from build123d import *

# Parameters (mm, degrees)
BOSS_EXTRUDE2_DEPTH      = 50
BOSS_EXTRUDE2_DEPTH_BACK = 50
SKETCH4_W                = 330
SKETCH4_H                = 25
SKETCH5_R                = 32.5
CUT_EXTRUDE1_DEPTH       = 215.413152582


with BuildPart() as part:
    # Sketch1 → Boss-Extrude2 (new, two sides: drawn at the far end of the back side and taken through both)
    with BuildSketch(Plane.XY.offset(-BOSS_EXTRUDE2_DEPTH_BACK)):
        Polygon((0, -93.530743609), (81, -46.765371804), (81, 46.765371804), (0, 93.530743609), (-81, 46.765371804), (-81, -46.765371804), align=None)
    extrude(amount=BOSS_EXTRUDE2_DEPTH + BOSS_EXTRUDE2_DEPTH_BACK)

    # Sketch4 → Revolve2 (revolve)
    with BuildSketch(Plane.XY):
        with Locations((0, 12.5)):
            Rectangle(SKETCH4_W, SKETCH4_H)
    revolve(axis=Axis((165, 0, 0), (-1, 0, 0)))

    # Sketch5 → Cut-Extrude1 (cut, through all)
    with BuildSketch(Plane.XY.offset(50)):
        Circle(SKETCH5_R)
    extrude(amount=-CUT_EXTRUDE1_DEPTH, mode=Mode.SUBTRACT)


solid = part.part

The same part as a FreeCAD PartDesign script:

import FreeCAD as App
import Part
import Sketcher
Q = App.Units.Quantity

doc = App.newDocument("Part")
body = doc.addObject("PartDesign::Body", "Body")

# Sketch on XY plane
sketch1 = body.newObject("Sketcher::SketchObject", "Sketch")
sketch1.AttachmentSupport = (doc.getObject("XY_Plane"), [""])
sketch1.MapMode = "FlatFace"
sketch1.addGeometry(Part.LineSegment(App.Vector(0, -94, 0), App.Vector(81, -47, 0)), False)
sketch1.addGeometry(Part.LineSegment(App.Vector(81, -47, 0), App.Vector(81, 47, 0)), False)
sketch1.addGeometry(Part.LineSegment(App.Vector(81, 47, 0), App.Vector(0, 94, 0)), False)
sketch1.addGeometry(Part.LineSegment(App.Vector(0, 94, 0), App.Vector(-81, 47, 0)), False)
sketch1.addGeometry(Part.LineSegment(App.Vector(-81, 47, 0), App.Vector(-81, -47, 0)), False)
sketch1.addGeometry(Part.LineSegment(App.Vector(-81, -47, 0), App.Vector(0, -94, 0)), False)
sketch1.addConstraint(Sketcher.Constraint("Coincident", 0, 2, 1, 1))
sketch1.addConstraint(Sketcher.Constraint("Coincident", 1, 2, 2, 1))
sketch1.addConstraint(Sketcher.Constraint("Coincident", 2, 2, 3, 1))
sketch1.addConstraint(Sketcher.Constraint("Coincident", 3, 2, 4, 1))
sketch1.addConstraint(Sketcher.Constraint("Coincident", 4, 2, 5, 1))
sketch1.addConstraint(Sketcher.Constraint("Coincident", 5, 2, 0, 1))
sketch1.addConstraint(Sketcher.Constraint("Vertical", 1))
sketch1.addConstraint(Sketcher.Constraint("Vertical", 4))
sketch1.addConstraint(Sketcher.Constraint("Symmetric", 0, 2, 3, 2, -1, 1))
sketch1.addConstraint(Sketcher.Constraint("Symmetric", 2, 2, 5, 2, -1, 1))
sketch1.addConstraint(Sketcher.Constraint("PointOnObject", 2, 2, -2))
sketch1.addConstraint(Sketcher.Constraint("Parallel", 2, 5))
sketch1.addConstraint(Sketcher.Constraint("Horizontal", 1, 2, 3, 2))
sketch1.addConstraint(Sketcher.Constraint("Angle", 0, Q("30 deg")))
sketch1.addConstraint(Sketcher.Constraint("DistanceX", -1, 1, 0, 2, 81.0))
sketch1.addConstraint(Sketcher.Constraint("DistanceY", 1, 1, 1, 2, 93.530744))
pad1 = body.newObject("PartDesign::Pad", "Pad")
pad1.Profile = sketch1
pad1.Type = "TwoLengths"
pad1.Length = 50
pad1.Length2 = 50

# Sketch on XY plane
sketch2 = body.newObject("Sketcher::SketchObject", "Sketch001")
sketch2.AttachmentSupport = (doc.getObject("XY_Plane"), [""])
sketch2.MapMode = "FlatFace"
sketch2.addGeometry(Part.LineSegment(App.Vector(-165, 25, 0), App.Vector(-165, 0, 0)), False)
sketch2.addGeometry(Part.LineSegment(App.Vector(-165, 0, 0), App.Vector(165, 0, 0)), False)
sketch2.addGeometry(Part.LineSegment(App.Vector(165, 0, 0), App.Vector(165, 25, 0)), False)
sketch2.addGeometry(Part.LineSegment(App.Vector(165, 25, 0), App.Vector(-165, 25, 0)), False)
sketch2.addConstraint(Sketcher.Constraint("Coincident", 0, 2, 1, 1))
sketch2.addConstraint(Sketcher.Constraint("Coincident", 1, 2, 2, 1))
sketch2.addConstraint(Sketcher.Constraint("Coincident", 2, 2, 3, 1))
sketch2.addConstraint(Sketcher.Constraint("Coincident", 3, 2, 0, 1))
sketch2.addConstraint(Sketcher.Constraint("Vertical", 0))
sketch2.addConstraint(Sketcher.Constraint("Horizontal", 1))
sketch2.addConstraint(Sketcher.Constraint("Vertical", 2))
sketch2.addConstraint(Sketcher.Constraint("Horizontal", 3))
sketch2.addConstraint(Sketcher.Constraint("Symmetric", 0, 2, 1, 2, -1, 1))
sketch2.addConstraint(Sketcher.Constraint("DistanceX", 1, 1, 1, 2, 330.0))
sketch2.addConstraint(Sketcher.Constraint("DistanceY", 0, 2, 0, 1, 25.0))
revolution = body.newObject("PartDesign::Revolution", "Revolution")
revolution.Profile = sketch2
revolution.ReferenceAxis = (sketch2, ["H_Axis"])
revolution.Angle = 360

# Sketch on XY plane
sketch3 = body.newObject("Sketcher::SketchObject", "Sketch002")
sketch3.AttachmentSupport = (doc.getObject("XY_Plane"), [""])
sketch3.MapMode = "FlatFace"
sketch3.AttachmentOffset = App.Placement(App.Vector(0, 0, 50), App.Rotation())
sketch3.addGeometry(Part.Circle(App.Vector(0, 0, 0), App.Vector(0, 0, 1), 32), False)
sketch3.addConstraint(Sketcher.Constraint("Coincident", 0, 3, -1, 1))
sketch3.addConstraint(Sketcher.Constraint("Diameter", 0, 65.0))
pocket1 = body.newObject("PartDesign::Pocket", "Pocket")
pocket1.Profile = sketch3
pocket1.Type = "ThroughAll"

doc.recompute()
